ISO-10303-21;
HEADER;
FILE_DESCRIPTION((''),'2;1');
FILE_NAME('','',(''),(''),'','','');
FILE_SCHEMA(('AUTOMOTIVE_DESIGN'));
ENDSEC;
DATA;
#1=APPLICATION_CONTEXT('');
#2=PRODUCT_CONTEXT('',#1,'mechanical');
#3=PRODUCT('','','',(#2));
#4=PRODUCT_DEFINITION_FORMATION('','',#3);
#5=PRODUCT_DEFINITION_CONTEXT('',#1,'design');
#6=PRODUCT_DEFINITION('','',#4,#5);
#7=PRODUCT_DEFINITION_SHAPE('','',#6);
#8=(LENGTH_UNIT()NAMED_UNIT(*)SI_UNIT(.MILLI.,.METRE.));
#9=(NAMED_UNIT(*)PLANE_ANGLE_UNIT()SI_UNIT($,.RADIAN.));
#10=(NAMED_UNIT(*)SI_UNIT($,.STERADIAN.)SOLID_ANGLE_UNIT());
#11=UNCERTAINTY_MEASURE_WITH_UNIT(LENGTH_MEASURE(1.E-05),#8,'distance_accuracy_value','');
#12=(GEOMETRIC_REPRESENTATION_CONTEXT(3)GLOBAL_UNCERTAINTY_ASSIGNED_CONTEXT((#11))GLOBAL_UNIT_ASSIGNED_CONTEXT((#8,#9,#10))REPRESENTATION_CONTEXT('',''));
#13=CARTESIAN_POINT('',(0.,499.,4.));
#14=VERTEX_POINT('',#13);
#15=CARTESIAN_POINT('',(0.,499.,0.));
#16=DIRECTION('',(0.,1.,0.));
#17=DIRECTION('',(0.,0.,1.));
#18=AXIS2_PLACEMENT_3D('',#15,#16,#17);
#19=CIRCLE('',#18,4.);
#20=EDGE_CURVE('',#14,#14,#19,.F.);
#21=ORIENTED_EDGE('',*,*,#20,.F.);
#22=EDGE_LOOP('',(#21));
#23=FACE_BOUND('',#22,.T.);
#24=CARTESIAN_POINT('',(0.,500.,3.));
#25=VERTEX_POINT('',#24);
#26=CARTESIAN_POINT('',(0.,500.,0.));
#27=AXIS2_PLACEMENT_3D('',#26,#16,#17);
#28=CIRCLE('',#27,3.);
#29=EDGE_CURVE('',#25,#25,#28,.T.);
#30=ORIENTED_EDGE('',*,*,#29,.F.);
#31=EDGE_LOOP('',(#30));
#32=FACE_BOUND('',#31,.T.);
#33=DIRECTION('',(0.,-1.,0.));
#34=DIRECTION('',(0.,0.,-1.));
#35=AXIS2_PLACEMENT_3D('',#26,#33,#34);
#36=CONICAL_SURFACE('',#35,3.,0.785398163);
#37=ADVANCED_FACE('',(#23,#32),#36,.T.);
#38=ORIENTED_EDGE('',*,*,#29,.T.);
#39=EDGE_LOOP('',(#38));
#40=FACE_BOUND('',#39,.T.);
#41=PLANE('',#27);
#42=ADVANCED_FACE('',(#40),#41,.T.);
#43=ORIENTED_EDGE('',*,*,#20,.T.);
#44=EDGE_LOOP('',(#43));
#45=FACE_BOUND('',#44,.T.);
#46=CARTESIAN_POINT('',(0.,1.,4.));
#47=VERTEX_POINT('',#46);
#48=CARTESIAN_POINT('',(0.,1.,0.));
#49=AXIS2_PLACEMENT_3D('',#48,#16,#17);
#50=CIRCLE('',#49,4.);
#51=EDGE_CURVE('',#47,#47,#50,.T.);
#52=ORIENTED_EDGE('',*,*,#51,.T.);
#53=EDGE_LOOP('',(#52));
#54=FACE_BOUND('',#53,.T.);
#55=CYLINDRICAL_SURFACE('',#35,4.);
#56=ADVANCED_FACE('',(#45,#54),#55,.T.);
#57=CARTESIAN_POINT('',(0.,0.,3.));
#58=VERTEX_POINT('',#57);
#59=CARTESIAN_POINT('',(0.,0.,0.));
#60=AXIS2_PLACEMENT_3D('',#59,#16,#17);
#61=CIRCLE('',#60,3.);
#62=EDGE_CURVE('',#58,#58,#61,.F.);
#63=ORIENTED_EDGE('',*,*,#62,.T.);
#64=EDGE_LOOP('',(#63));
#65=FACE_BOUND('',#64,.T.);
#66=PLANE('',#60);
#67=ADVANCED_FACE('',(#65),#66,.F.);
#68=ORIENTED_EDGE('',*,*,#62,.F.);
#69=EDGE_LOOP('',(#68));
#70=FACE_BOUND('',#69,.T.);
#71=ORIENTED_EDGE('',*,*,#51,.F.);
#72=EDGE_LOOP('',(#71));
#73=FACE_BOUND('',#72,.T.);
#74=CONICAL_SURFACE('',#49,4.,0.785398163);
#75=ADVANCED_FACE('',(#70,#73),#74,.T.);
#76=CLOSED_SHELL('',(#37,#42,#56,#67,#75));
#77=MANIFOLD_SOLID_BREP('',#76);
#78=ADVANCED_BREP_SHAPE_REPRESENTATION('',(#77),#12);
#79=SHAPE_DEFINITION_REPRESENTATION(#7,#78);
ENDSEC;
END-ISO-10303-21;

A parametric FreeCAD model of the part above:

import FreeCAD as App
import Part
import Sketcher
from FreeCAD import Vector


def edges_at(feature, points):
    """Names of the edges that pass closest to the given points."""
    edges = feature.Shape.Edges
    near = lambda p: min(range(len(edges)), key=lambda i: edges[i].distToShape(Part.Vertex(*p))[0])
    return sorted({f"Edge{near(p) + 1}" for p in points})

doc = App.newDocument("Part")
body = doc.addObject("PartDesign::Body", "Body")

sketch1 = doc.addObject("Sketcher::SketchObject", "Sketch")
body.addObject(sketch1)
sketch1.AttachmentSupport = (doc.XZ_Plane, [""])
sketch1.MapMode = "FlatFace"
sketch1.addGeometry(Part.Circle(Vector(0, 0, 0), Vector(0, 0, 1), 4), False)
sketch1.addConstraint([
    Sketcher.Constraint("Coincident", 0, 3, -1, 1),
    Sketcher.Constraint("Diameter", 0, 8.0),
])
pad1 = doc.addObject("PartDesign::Pad", "Pad")
body.addObject(pad1)
pad1.Profile = sketch1
pad1.Length = 500
pad1.Reversed = True
doc.recompute()

chamfer = doc.addObject("PartDesign::Chamfer", "Chamfer")
body.addObject(chamfer)
chamfer.Base = (pad1, edges_at(pad1, [(-4, 0, 0), (-4, 500, 0)]))
chamfer.Size = 1

doc.recompute()
